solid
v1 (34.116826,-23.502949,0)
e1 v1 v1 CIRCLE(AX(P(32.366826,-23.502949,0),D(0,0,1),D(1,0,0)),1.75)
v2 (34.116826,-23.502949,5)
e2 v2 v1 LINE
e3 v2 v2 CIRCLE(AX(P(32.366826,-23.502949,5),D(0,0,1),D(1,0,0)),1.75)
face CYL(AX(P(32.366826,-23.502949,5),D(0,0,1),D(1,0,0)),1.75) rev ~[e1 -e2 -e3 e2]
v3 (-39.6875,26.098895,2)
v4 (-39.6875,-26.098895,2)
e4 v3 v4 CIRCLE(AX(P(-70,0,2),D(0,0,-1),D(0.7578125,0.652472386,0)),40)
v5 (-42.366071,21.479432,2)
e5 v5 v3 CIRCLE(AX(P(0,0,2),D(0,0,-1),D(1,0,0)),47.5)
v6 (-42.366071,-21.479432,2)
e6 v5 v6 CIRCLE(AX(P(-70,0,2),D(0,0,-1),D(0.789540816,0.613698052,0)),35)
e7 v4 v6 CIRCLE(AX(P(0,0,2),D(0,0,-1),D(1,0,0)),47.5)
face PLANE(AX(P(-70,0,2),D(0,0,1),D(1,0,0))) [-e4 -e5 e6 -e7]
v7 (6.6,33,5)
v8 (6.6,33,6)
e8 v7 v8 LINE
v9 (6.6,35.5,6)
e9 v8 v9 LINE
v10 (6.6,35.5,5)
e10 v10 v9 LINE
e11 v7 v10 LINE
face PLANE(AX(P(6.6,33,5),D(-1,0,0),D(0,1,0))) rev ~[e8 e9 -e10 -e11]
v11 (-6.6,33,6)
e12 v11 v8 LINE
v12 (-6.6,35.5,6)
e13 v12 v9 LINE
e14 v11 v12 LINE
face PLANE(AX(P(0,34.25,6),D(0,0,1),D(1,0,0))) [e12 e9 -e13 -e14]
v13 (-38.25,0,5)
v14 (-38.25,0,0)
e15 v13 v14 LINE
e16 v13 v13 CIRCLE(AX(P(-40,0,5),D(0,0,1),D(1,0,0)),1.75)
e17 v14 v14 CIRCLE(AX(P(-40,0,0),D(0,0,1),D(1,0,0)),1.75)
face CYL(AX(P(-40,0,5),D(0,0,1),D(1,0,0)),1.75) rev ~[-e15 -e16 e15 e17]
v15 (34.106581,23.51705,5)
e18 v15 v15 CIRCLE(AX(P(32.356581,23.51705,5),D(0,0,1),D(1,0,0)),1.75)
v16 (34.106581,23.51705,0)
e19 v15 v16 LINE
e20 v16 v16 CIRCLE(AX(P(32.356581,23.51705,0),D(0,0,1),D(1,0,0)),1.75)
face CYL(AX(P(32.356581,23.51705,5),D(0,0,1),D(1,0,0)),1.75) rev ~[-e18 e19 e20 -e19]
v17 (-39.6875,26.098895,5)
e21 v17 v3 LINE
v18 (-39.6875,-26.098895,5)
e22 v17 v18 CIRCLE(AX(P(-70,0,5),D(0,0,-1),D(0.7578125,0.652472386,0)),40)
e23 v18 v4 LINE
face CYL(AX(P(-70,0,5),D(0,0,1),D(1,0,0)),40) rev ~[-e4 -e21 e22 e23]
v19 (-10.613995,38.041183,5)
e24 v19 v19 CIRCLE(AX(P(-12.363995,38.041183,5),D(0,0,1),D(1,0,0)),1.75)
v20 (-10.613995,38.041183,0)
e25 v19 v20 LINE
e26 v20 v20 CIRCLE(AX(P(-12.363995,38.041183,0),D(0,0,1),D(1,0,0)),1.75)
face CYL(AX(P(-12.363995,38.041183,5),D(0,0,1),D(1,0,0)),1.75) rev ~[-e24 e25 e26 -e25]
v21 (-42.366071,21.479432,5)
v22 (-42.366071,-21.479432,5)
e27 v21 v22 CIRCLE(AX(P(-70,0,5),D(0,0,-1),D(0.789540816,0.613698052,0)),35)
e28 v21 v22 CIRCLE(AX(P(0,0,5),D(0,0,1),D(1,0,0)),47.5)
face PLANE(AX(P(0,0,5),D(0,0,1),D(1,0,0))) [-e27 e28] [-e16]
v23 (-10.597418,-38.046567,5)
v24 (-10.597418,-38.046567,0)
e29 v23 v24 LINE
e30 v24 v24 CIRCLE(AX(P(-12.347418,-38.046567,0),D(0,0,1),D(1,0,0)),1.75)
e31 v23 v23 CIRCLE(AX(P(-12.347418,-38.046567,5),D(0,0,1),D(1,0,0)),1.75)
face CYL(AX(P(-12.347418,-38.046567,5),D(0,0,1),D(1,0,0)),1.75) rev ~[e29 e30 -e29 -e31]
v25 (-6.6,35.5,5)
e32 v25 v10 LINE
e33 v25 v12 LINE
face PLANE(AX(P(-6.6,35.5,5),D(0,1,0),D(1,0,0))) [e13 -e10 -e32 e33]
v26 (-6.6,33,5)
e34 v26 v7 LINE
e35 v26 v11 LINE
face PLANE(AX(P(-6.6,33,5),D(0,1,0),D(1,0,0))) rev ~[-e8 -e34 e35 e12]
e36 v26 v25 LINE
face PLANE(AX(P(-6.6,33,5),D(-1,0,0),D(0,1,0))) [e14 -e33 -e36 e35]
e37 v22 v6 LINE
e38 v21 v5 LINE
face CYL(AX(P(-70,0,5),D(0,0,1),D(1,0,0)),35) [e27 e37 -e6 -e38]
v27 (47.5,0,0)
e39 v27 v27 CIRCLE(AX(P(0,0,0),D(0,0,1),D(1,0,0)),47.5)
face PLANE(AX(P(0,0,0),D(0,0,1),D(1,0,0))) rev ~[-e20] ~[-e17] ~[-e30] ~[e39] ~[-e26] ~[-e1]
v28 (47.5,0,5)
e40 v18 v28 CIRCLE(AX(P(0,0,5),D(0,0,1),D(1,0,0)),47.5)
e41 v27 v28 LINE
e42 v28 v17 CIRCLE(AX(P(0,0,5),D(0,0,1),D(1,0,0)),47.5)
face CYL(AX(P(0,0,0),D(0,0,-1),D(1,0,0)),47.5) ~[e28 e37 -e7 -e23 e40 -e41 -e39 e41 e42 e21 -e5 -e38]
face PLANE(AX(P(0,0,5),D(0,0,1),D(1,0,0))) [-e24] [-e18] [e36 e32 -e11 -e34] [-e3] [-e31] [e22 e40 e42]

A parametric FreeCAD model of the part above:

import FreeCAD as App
import Part
import Sketcher
Q = App.Units.Quantity


def add_polygon(sketch, points):
    """Adds a closed chain of lines whose ends are joined by coincident constraints."""
    first, n = sketch.GeometryCount, len(points)
    for a, b in zip(points, points[1:] + points[:1]):
        sketch.addGeometry(Part.LineSegment(App.Vector(*a, 0), App.Vector(*b, 0)), False)
    for i in range(n):
        sketch.addConstraint(Sketcher.Constraint("Coincident", first + i, 2, first + (i + 1) % n, 1))

doc = App.newDocument("Part")
body = doc.addObject("PartDesign::Body", "Body")

# Sketch on XY plane
sketch1 = body.newObject("Sketcher::SketchObject", "Sketch")
sketch1.AttachmentSupport = (doc.getObject("XY_Plane"), [""])
sketch1.MapMode = "FlatFace"
sketch1.addGeometry(Part.Circle(App.Vector(0, 0, 0), App.Vector(0, 0, 1), 47.5), False)
sketch1.addConstraint([
    Sketcher.Constraint("Coincident", 0, 3, -1, 1),
    Sketcher.Constraint("Diameter", 0, Q("95 mm")),
])
pad1 = body.newObject("PartDesign::Pad", "Pad")
pad1.Profile = sketch1
pad1.Length = 5

# Sketch on XY plane
sketch2 = body.newObject("Sketcher::SketchObject", "Sketch001")
sketch2.AttachmentSupport = (doc.getObject("XY_Plane"), [""])
sketch2.MapMode = "FlatFace"
sketch2.AttachmentOffset = App.Placement(App.Vector(0, 0, 5), App.Rotation())
sketch2.addGeometry([
    Part.Circle(App.Vector(-70, 0, 0), App.Vector(0, 0, 1), 40),
    Part.Circle(App.Vector(-70, 0, 0), App.Vector(0, 0, 1), 35),
], False)
sketch2.addConstraint([
    Sketcher.Constraint("Coincident", 1, 3, 0, 3),
    Sketcher.Constraint("PointOnObject", 0, 3, -1),
    Sketcher.Constraint("Diameter", 0, Q("80 mm")),
    Sketcher.Constraint("Diameter", 1, Q("70 mm")),
    Sketcher.Constraint("DistanceX", 0, 3, -1, 1, Q("70 mm")),
])
pocket1 = body.newObject("PartDesign::Pocket", "Pocket")
pocket1.Profile = sketch2
pocket1.Length = 3

# Sketch on XY plane
sketch3 = body.newObject("Sketcher::SketchObject", "Sketch002")
sketch3.AttachmentSupport = (doc.getObject("XY_Plane"), [""])
sketch3.MapMode = "FlatFace"
sketch3.AttachmentOffset = App.Placement(App.Vector(0, 0, 5), App.Rotation())
sketch3.addGeometry([
    Part.Circle(App.Vector(-40, 0, 0), App.Vector(0, 0, 1), 1.75),  # 0
    Part.Circle(App.Vector(-12.363995, 38.041183, 0), App.Vector(0, 0, 1), 1.75),  # 1
    Part.Circle(App.Vector(32.356581, 23.51705, 0), App.Vector(0, 0, 1), 1.75),  # 2
    Part.Circle(App.Vector(32.366826, -23.502949, 0), App.Vector(0, 0, 1), 1.75),  # 3
    Part.Circle(App.Vector(-12.347418, -38.046567, 0), App.Vector(0, 0, 1), 1.75),  # 4
], False)
sketch3.addConstraint([
    Sketcher.Constraint("Equal", 0, 1),
    Sketcher.Constraint("Equal", 1, 2),
    Sketcher.Constraint("Equal", 2, 3),
    Sketcher.Constraint("Equal", 3, 4),
    Sketcher.Constraint("PointOnObject", 0, 3, -1),
    Sketcher.Constraint("Diameter", 0, Q("3.5 mm")),
    Sketcher.Constraint("DistanceX", 0, 3, -1, 1, Q("40 mm")),
    Sketcher.Constraint("DistanceY", 3, 3, 2, 3, Q("47.019999 mm")),
    Sketcher.Constraint("DistanceX", 4, 3, 2, 3, Q("44.703999 mm")),
    Sketcher.Constraint("DistanceX", -1, 1, 2, 3, Q("32.356581 mm")),
    Sketcher.Constraint("DistanceY", -1, 1, 2, 3, Q("23.51705 mm")),
    Sketcher.Constraint("DistanceX", 1, 3, 3, 3, Q("44.730821 mm")),
    Sketcher.Constraint("DistanceY", 3, 3, 1, 3, Q("61.544132 mm")),
    Sketcher.Constraint("DistanceY", 4, 3, 3, 3, Q("14.543618 mm")),
    Sketcher.Constraint("DistanceX", 1, 3, -1, 1, Q("12.363995 mm")),
])
pocket2 = body.newObject("PartDesign::Pocket", "Pocket001")
pocket2.Profile = sketch3
pocket2.Length = 5

# Sketch on XY plane
sketch4 = body.newObject("Sketcher::SketchObject", "Sketch003")
sketch4.AttachmentSupport = (doc.getObject("XY_Plane"), [""])
sketch4.MapMode = "FlatFace"
sketch4.AttachmentOffset = App.Placement(App.Vector(0, 0, 5), App.Rotation())
add_polygon(sketch4, [(-6.6, 35.5), (-6.6, 33), (6.6, 33), (6.6, 35.5)])  # lines 0-3
sketch4.addConstraint([
    Sketcher.Constraint("Vertical", 0),
    Sketcher.Constraint("Horizontal", 1),
    Sketcher.Constraint("Vertical", 2),
    Sketcher.Constraint("Horizontal", 3),
    Sketcher.Constraint("DistanceX", 1, 1, 1, 2, Q("13.2 mm")),
    Sketcher.Constraint("DistanceY", 0, 2, 0, 1, Q("2.5 mm")),
    Sketcher.Constraint("DistanceY", -1, 1, 0, 2, Q("33 mm")),
    Sketcher.Constraint("DistanceX", 0, 2, -1, 1, Q("6.6 mm")),
])
pad2 = body.newObject("PartDesign::Pad", "Pad001")
pad2.Profile = sketch4
pad2.Length = 1

doc.recompute()
